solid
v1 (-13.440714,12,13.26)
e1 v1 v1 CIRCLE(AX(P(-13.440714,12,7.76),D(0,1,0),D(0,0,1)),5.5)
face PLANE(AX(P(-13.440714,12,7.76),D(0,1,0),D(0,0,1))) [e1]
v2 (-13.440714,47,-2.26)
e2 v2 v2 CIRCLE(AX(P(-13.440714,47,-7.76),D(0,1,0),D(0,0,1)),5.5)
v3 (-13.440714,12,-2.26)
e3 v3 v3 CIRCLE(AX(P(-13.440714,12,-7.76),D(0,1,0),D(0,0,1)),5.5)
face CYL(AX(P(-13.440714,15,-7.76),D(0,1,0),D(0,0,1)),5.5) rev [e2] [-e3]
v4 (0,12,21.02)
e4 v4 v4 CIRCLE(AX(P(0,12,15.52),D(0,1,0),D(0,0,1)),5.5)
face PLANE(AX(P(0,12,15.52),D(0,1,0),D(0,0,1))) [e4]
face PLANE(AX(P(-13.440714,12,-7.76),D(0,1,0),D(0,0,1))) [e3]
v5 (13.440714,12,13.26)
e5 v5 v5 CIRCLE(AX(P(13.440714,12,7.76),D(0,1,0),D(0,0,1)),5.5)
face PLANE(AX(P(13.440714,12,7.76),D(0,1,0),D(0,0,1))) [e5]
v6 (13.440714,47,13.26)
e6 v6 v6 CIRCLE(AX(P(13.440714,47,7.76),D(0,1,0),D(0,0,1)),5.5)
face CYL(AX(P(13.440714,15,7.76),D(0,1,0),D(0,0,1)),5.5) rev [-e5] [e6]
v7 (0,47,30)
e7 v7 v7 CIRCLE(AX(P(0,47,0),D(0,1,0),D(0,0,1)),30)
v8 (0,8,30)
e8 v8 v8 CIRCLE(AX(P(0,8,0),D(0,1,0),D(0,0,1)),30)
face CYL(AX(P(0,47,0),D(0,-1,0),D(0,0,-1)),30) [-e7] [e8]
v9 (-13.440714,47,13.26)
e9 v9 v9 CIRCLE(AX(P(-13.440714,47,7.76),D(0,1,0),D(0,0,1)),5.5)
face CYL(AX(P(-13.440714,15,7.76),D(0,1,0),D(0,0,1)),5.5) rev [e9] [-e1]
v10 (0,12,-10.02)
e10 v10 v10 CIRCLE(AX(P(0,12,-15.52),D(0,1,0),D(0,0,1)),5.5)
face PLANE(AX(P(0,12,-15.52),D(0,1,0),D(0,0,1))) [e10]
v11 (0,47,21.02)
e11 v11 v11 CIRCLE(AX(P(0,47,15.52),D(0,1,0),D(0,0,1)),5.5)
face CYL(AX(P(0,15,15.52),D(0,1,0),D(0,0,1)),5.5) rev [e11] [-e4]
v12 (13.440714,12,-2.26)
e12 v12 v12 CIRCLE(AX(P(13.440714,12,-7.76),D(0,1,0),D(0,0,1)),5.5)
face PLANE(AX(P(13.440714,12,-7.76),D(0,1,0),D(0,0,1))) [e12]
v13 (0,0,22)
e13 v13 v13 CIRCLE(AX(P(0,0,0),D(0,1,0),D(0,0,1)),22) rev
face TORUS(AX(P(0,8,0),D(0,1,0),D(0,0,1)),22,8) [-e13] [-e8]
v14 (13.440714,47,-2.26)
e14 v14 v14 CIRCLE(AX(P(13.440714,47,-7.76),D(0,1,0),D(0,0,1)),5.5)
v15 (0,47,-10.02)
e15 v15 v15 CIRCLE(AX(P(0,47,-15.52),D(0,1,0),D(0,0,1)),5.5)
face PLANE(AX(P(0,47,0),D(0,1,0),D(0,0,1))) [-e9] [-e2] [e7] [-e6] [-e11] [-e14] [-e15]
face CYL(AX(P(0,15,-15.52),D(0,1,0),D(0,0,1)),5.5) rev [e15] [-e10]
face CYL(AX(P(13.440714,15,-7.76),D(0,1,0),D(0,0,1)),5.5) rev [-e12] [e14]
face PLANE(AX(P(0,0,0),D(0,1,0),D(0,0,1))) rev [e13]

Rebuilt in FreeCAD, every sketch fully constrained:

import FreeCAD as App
import Part
import Sketcher
Q = App.Units.Quantity


def edges_at(feature, points):
    """Names of the edges that pass closest to the given points."""
    edges = feature.Shape.Edges
    near = lambda p: min(range(len(edges)), key=lambda i: edges[i].distToShape(Part.Vertex(*p))[0])
    return sorted({f"Edge{near(p) + 1}" for p in points})

doc = App.newDocument("Part")
params = doc.addObject("Spreadsheet::Sheet", "Params")
for row, (alias, value) in enumerate([
    ("sketch1_diameter", "60 mm"),
    ("pad1_length", "47 mm"),
    ("sketch2_diameter", "11 mm"),
    ("pocket1_length", "32 mm"),
    ("fillet_radius", "8 mm"),
    ("sketch3_diameter", "11 mm"),
    ("pocket2_length", "35 mm"),
], start=1):
    params.set(f"A{row}", alias)
    params.set(f"B{row}", "=" + value)
    params.setAlias(f"B{row}", alias)

body = doc.addObject("PartDesign::Body", "Body")

sketch1 = body.newObject("Sketcher::SketchObject", "Sketch")
sketch1.AttachmentSupport = (doc.getObject("XZ_Plane"), [""])
sketch1.MapMode = "FlatFace"
sketch1.addGeometry(Part.Circle(App.Vector(0, 0, 0), App.Vector(0, 0, 1), 30), False)
sketch1.addConstraint(Sketcher.Constraint("Coincident", 0, 3, -1, 1))
sketch1.addConstraint(Sketcher.Constraint("Diameter", 0, Q("60 mm")))
sketch1.setExpression("Constraints[1]", "Params.sketch1_diameter")
pad1 = body.newObject("PartDesign::Pad", "Pad")
pad1.Profile = sketch1
pad1.setExpression("Length", "Params.pad1_length")
pad1.Reversed = True

sketch2 = body.newObject("Sketcher::SketchObject", "Sketch001")
sketch2.AttachmentSupport = (doc.getObject("XZ_Plane"), [""])
sketch2.MapMode = "FlatFace"
sketch2.AttachmentOffset = App.Placement(App.Vector(0, 0, -47), App.Rotation())
sketch2.addGeometry(Part.Circle(App.Vector(0, -16, 0), App.Vector(0, 0, 1), 6), False)
sketch2.addGeometry(Part.Circle(App.Vector(-13, -8, 0), App.Vector(0, 0, 1), 6), False)
sketch2.addGeometry(Part.Circle(App.Vector(-13, 8, 0), App.Vector(0, 0, 1), 6), False)
sketch2.addGeometry(Part.Circle(App.Vector(0, 16, 0), App.Vector(0, 0, 1), 6), False)
sketch2.addGeometry(Part.Circle(App.Vector(13, 8, 0), App.Vector(0, 0, 1), 6), False)
sketch2.addGeometry(Part.Circle(App.Vector(13, -8, 0), App.Vector(0, 0, 1), 6), False)
sketch2.addConstraint(Sketcher.Constraint("Equal", 0, 1))
sketch2.addConstraint(Sketcher.Constraint("Equal", 1, 2))
sketch2.addConstraint(Sketcher.Constraint("Equal", 2, 3))
sketch2.addConstraint(Sketcher.Constraint("Equal", 3, 4))
sketch2.addConstraint(Sketcher.Constraint("Equal", 4, 5))
sketch2.addConstraint(Sketcher.Constraint("Symmetric", 0, 3, 3, 3, -1, 1))
sketch2.addConstraint(Sketcher.Constraint("Symmetric", 1, 3, 4, 3, -1, 1))
sketch2.addConstraint(Sketcher.Constraint("Symmetric", 2, 3, 5, 3, -1, 1))
sketch2.addConstraint(Sketcher.Constraint("Symmetric", 2, 3, 4, 3, -2))
sketch2.addConstraint(Sketcher.Constraint("PointOnObject", 0, 3, -2))
sketch2.addConstraint(Sketcher.Constraint("Diameter", 0, Q("11 mm")))
sketch2.addConstraint(Sketcher.Constraint("DistanceY", 0, 3, -1, 1, Q("15.52 mm")))
sketch2.addConstraint(Sketcher.Constraint("DistanceY", 1, 3, -1, 1, Q("7.76 mm")))
sketch2.addConstraint(Sketcher.Constraint("DistanceX", 2, 3, 4, 3, Q("26.881429 mm")))
sketch2.setExpression("Constraints[10]", "Params.sketch2_diameter")
pocket1 = body.newObject("PartDesign::Pocket", "Pocket")
pocket1.Profile = sketch2
pocket1.setExpression("Length", "Params.pocket1_length")
pocket1.Reversed = True
doc.recompute()

fillet = body.newObject("PartDesign::Fillet", "Fillet")
fillet.Base = (pocket1, edges_at(pocket1, [(-30, 0, 0)]))
fillet.setExpression("Radius", "Params.fillet_radius")

sketch3 = body.newObject("Sketcher::SketchObject", "Sketch002")
sketch3.AttachmentSupport = (doc.getObject("XZ_Plane"), [""])
sketch3.MapMode = "FlatFace"
sketch3.AttachmentOffset = App.Placement(App.Vector(0, 0, -47), App.Rotation())
sketch3.addGeometry(Part.Circle(App.Vector(0, -16, 0), App.Vector(0, 0, 1), 6), False)
sketch3.addGeometry(Part.Circle(App.Vector(-13, -8, 0), App.Vector(0, 0, 1), 6), False)
sketch3.addGeometry(Part.Circle(App.Vector(-13, 8, 0), App.Vector(0, 0, 1), 6), False)
sketch3.addGeometry(Part.Circle(App.Vector(0, 16, 0), App.Vector(0, 0, 1), 6), False)
sketch3.addGeometry(Part.Circle(App.Vector(13, 8, 0), App.Vector(0, 0, 1), 6), False)
sketch3.addGeometry(Part.Circle(App.Vector(13, -8, 0), App.Vector(0, 0, 1), 6), False)
sketch3.addConstraint(Sketcher.Constraint("Equal", 0, 1))
sketch3.addConstraint(Sketcher.Constraint("Equal", 1, 2))
sketch3.addConstraint(Sketcher.Constraint("Equal", 2, 3))
sketch3.addConstraint(Sketcher.Constraint("Equal", 3, 4))
sketch3.addConstraint(Sketcher.Constraint("Equal", 4, 5))
sketch3.addConstraint(Sketcher.Constraint("Symmetric", 0, 3, 3, 3, -1, 1))
sketch3.addConstraint(Sketcher.Constraint("Symmetric", 1, 3, 4, 3, -1, 1))
sketch3.addConstraint(Sketcher.Constraint("Symmetric", 2, 3, 5, 3, -1, 1))
sketch3.addConstraint(Sketcher.Constraint("Symmetric", 2, 3, 4, 3, -2))
sketch3.addConstraint(Sketcher.Constraint("PointOnObject", 0, 3, -2))
sketch3.addConstraint(Sketcher.Constraint("Diameter", 0, Q("11 mm")))
sketch3.addConstraint(Sketcher.Constraint("DistanceY", 0, 3, -1, 1, Q("15.52 mm")))
sketch3.addConstraint(Sketcher.Constraint("DistanceY", 1, 3, -1, 1, Q("7.76 mm")))
sketch3.addConstraint(Sketcher.Constraint("DistanceX", 2, 3, 4, 3, Q("26.881429 mm")))
sketch3.setExpression("Constraints[10]", "Params.sketch3_diameter")
pocket2 = body.newObject("PartDesign::Pocket", "Pocket001")
pocket2.Profile = sketch3
pocket2.setExpression("Length", "Params.pocket2_length")
pocket2.Reversed = True

doc.recompute()
